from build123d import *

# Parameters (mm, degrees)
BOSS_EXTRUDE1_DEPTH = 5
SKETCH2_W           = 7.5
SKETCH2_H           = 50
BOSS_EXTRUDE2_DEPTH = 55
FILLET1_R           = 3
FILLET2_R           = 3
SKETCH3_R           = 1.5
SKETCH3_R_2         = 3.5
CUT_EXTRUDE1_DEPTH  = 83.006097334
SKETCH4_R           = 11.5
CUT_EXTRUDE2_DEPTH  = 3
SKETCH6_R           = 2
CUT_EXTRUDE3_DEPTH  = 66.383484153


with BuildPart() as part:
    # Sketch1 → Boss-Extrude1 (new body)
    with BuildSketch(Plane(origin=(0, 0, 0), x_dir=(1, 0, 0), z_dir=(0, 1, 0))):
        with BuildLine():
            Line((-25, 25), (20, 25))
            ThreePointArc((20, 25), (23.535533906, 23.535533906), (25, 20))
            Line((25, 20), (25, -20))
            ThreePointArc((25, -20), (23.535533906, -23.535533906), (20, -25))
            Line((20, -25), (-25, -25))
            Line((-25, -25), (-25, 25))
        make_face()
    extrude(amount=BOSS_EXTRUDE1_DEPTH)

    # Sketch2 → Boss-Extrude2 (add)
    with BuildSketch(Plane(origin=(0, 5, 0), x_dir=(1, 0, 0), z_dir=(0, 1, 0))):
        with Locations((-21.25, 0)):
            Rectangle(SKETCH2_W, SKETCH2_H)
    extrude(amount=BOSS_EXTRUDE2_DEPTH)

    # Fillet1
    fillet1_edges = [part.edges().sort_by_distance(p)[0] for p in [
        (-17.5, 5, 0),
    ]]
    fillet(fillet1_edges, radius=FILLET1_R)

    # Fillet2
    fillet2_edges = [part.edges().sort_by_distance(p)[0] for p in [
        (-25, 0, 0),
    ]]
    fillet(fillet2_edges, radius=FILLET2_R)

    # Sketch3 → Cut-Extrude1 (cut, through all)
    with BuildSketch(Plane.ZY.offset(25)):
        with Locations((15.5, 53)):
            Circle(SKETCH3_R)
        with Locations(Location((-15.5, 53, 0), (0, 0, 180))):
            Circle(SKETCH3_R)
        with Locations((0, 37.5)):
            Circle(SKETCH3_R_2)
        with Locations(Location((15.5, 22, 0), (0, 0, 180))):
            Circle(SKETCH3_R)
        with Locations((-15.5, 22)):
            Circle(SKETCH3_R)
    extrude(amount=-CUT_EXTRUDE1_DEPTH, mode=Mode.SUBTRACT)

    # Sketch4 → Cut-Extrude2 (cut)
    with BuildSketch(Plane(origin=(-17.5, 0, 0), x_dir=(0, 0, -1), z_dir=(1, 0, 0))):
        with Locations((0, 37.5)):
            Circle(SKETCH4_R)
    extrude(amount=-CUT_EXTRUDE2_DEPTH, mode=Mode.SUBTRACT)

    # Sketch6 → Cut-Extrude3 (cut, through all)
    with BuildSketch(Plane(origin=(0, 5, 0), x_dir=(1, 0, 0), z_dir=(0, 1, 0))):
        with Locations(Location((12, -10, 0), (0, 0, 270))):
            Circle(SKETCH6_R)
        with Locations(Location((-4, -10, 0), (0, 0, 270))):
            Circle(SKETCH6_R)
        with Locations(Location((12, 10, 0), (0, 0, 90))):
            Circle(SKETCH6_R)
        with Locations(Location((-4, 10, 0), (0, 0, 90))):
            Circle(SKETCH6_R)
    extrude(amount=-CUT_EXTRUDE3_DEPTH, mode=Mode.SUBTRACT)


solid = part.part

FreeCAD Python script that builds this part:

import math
import FreeCAD as App
import Part
import Sketcher


def edges_at(feature, points):
    """Names of the edges that pass closest to the given points."""
    edges = feature.Shape.Edges
    near = lambda p: min(range(len(edges)), key=lambda i: edges[i].distToShape(Part.Vertex(*p))[0])
    return sorted({f"Edge{near(p) + 1}" for p in points})


def add_polygon(sketch, points):
    """Adds a closed chain of lines whose ends are joined by coincident constraints."""
    first, n = sketch.GeometryCount, len(points)
    for a, b in zip(points, points[1:] + points[:1]):
        sketch.addGeometry(Part.LineSegment(App.Vector(*a, 0), App.Vector(*b, 0)), False)
    for i in range(n):
        sketch.addConstraint(Sketcher.Constraint("Coincident", first + i, 2, first + (i + 1) % n, 1))

doc = App.newDocument("Part")
body = doc.addObject("PartDesign::Body", "Body")

# Sketch on XZ plane
sketch1 = body.newObject("Sketcher::SketchObject", "Sketch")
sketch1.AttachmentSupport = (doc.getObject("XZ_Plane"), [""])
sketch1.MapMode = "FlatFace"
sketch1.addGeometry([
    Part.LineSegment(App.Vector(20, -25, 0), App.Vector(-25, -25, 0)),  # 0
    Part.LineSegment(App.Vector(-25, -25, 0), App.Vector(-25, 25, 0)),  # 1
    Part.LineSegment(App.Vector(-25, 25, 0), App.Vector(20, 25, 0)),  # 2
    Part.ArcOfCircle(Part.Circle(App.Vector(20, 20, 0), App.Vector(0, 0, 1), 5), math.radians(0), math.radians(90)),  # 3
    Part.LineSegment(App.Vector(25, 20, 0), App.Vector(25, -20, 0)),  # 4
    Part.ArcOfCircle(Part.Circle(App.Vector(20, -20, 0), App.Vector(0, 0, 1), 5), math.radians(-90), math.radians(0)),  # 5
], False)
sketch1.addConstraint([
    Sketcher.Constraint("Coincident", 0, 2, 1, 1),
    Sketcher.Constraint("Coincident", 1, 2, 2, 1),
    Sketcher.Constraint("Tangent", 2, 2, 3, 2),
    Sketcher.Constraint("Tangent", 3, 1, 4, 1),
    Sketcher.Constraint("Tangent", 4, 2, 5, 2),
    Sketcher.Constraint("Tangent", 5, 1, 0, 1),
    Sketcher.Constraint("Horizontal", 0),
    Sketcher.Constraint("Vertical", 1),
    Sketcher.Constraint("Horizontal", 2),
    Sketcher.Constraint("Vertical", 4),
    Sketcher.Constraint("Equal", 3, 5),
    Sketcher.Constraint("Radius", 3, 5.0),
    Sketcher.Constraint("DistanceX", 0, 2, 0, 1, 45.0),
    Sketcher.Constraint("DistanceY", 1, 1, 1, 2, 50.0),
    Sketcher.Constraint("DistanceX", -1, 1, 3, 3, 20.0),
    Sketcher.Constraint("DistanceY", -1, 1, 3, 3, 20.0),
])
pad1 = body.newObject("PartDesign::Pad", "Pad")
pad1.Profile = sketch1
pad1.Length = 5
pad1.Reversed = True

# Sketch on XZ plane
sketch2 = body.newObject("Sketcher::SketchObject", "Sketch001")
sketch2.AttachmentSupport = (doc.getObject("XZ_Plane"), [""])
sketch2.MapMode = "FlatFace"
sketch2.AttachmentOffset = App.Placement(App.Vector(0, 0, -5), App.Rotation())
add_polygon(sketch2, [(-25, -25), (-25, 25), (-18, 25), (-18, -25)])  # lines 0-3
sketch2.addConstraint([
    Sketcher.Constraint("Vertical", 0),
    Sketcher.Constraint("Horizontal", 1),
    Sketcher.Constraint("Vertical", 2),
    Sketcher.Constraint("Horizontal", 3),
    Sketcher.Constraint("DistanceY", 0, 1, 0, 2, 50.0),
    Sketcher.Constraint("DistanceX", 1, 1, 1, 2, 7.5),
    Sketcher.Constraint("DistanceX", 0, 2, -1, 1, 25.0),
    Sketcher.Constraint("DistanceY", -1, 1, 0, 2, 25.0),
])
pad2 = body.newObject("PartDesign::Pad", "Pad001")
pad2.Profile = sketch2
pad2.Length = 55
pad2.Reversed = True
doc.recompute()

fillet = body.newObject("PartDesign::Fillet", "Fillet")
fillet.Base = (pad2, edges_at(pad2, [(-17.5, 5, 0)]))
fillet.Radius = 3
doc.recompute()

fillet2 = body.newObject("PartDesign::Fillet", "Fillet001")
fillet2.Base = (fillet, edges_at(fillet, [(-25, 0, 0)]))
fillet2.Radius = 3

# Sketch on YZ plane
sketch3 = body.newObject("Sketcher::SketchObject", "Sketch002")
sketch3.AttachmentSupport = (doc.getObject("YZ_Plane"), [""])
sketch3.MapMode = "FlatFace"
sketch3.AttachmentOffset = App.Placement(App.Vector(0, 0, -25), App.Rotation())
sketch3.addGeometry([
    Part.Circle(App.Vector(53, 15.5, 0), App.Vector(0, 0, 1), 1.5),  # 0
    Part.Circle(App.Vector(53, -15.5, 0), App.Vector(0, 0, 1), 1.5),  # 1
    Part.Circle(App.Vector(37.5, 0, 0), App.Vector(0, 0, 1), 3.5),  # 2
    Part.Circle(App.Vector(22, 15.5, 0), App.Vector(0, 0, 1), 1.5),  # 3
    Part.Circle(App.Vector(22, -15.5, 0), App.Vector(0, 0, 1), 1.5),  # 4
], False)
sketch3.addConstraint([
    Sketcher.Constraint("Equal", 0, 1),
    Sketcher.Constraint("Equal", 1, 3),
    Sketcher.Constraint("Equal", 3, 4),
    Sketcher.Constraint("Symmetric", 0, 3, 1, 3, -1),
    Sketcher.Constraint("Symmetric", 3, 3, 4, 3, -1),
    Sketcher.Constraint("PointOnObject", 2, 3, -1),
    Sketcher.Constraint("Horizontal", 0, 3, 3, 3),
    Sketcher.Constraint("Diameter", 0, 3.0),
    Sketcher.Constraint("Diameter", 2, 7.0),
    Sketcher.Constraint("DistanceX", -1, 1, 0, 3, 53.0),
    Sketcher.Constraint("DistanceX", -1, 1, 3, 3, 22.0),
    Sketcher.Constraint("DistanceY", 1, 3, 0, 3, 31.0),
    Sketcher.Constraint("DistanceX", -1, 1, 2, 3, 37.5),
])
pocket1 = body.newObject("PartDesign::Pocket", "Pocket")
pocket1.Profile = sketch3
pocket1.Type = "ThroughAll"
pocket1.Reversed = True

# Sketch on YZ plane
sketch4 = body.newObject("Sketcher::SketchObject", "Sketch003")
sketch4.AttachmentSupport = (doc.getObject("YZ_Plane"), [""])
sketch4.MapMode = "FlatFace"
sketch4.AttachmentOffset = App.Placement(App.Vector(0, 0, -17.5), App.Rotation())
sketch4.addGeometry(Part.Circle(App.Vector(38, 0, 0), App.Vector(0, 0, 1), 12), False)
sketch4.addConstraint([
    Sketcher.Constraint("PointOnObject", 0, 3, -1),
    Sketcher.Constraint("Diameter", 0, 23.0),
    Sketcher.Constraint("DistanceX", -1, 1, 0, 3, 37.5),
])
pocket2 = body.newObject("PartDesign::Pocket", "Pocket001")
pocket2.Profile = sketch4
pocket2.Length = 3

# Sketch on XZ plane
sketch5 = body.newObject("Sketcher::SketchObject", "Sketch004")
sketch5.AttachmentSupport = (doc.getObject("XZ_Plane"), [""])
sketch5.MapMode = "FlatFace"
sketch5.AttachmentOffset = App.Placement(App.Vector(0, 0, -5), App.Rotation())
sketch5.addGeometry([
    Part.Circle(App.Vector(12, 10, 0), App.Vector(0, 0, 1), 2),
    Part.Circle(App.Vector(-4, 10, 0), App.Vector(0, 0, 1), 2),
    Part.Circle(App.Vector(12, -10, 0), App.Vector(0, 0, 1), 2),
    Part.Circle(App.Vector(-4, -10, 0), App.Vector(0, 0, 1), 2),
], False)
sketch5.addConstraint([
    Sketcher.Constraint("Equal", 0, 1),
    Sketcher.Constraint("Equal", 1, 2),
    Sketcher.Constraint("Equal", 2, 3),
    Sketcher.Constraint("Symmetric", 0, 3, 2, 3, -1),
    Sketcher.Constraint("Symmetric", 1, 3, 3, 3, -1),
    Sketcher.Constraint("Horizontal", 0, 3, 1, 3),
    Sketcher.Constraint("Diameter", 0, 4.0),
    Sketcher.Constraint("DistanceX", -1, 1, 0, 3, 12.0),
    Sketcher.Constraint("DistanceY", -1, 1, 0, 3, 10.0),
    Sketcher.Constraint("DistanceX", 1, 3, -1, 1, 4.0),
])
pocket3 = body.newObject("PartDesign::Pocket", "Pocket002")
pocket3.Profile = sketch5
pocket3.Type = "ThroughAll"
pocket3.Reversed = True

doc.recompute()
